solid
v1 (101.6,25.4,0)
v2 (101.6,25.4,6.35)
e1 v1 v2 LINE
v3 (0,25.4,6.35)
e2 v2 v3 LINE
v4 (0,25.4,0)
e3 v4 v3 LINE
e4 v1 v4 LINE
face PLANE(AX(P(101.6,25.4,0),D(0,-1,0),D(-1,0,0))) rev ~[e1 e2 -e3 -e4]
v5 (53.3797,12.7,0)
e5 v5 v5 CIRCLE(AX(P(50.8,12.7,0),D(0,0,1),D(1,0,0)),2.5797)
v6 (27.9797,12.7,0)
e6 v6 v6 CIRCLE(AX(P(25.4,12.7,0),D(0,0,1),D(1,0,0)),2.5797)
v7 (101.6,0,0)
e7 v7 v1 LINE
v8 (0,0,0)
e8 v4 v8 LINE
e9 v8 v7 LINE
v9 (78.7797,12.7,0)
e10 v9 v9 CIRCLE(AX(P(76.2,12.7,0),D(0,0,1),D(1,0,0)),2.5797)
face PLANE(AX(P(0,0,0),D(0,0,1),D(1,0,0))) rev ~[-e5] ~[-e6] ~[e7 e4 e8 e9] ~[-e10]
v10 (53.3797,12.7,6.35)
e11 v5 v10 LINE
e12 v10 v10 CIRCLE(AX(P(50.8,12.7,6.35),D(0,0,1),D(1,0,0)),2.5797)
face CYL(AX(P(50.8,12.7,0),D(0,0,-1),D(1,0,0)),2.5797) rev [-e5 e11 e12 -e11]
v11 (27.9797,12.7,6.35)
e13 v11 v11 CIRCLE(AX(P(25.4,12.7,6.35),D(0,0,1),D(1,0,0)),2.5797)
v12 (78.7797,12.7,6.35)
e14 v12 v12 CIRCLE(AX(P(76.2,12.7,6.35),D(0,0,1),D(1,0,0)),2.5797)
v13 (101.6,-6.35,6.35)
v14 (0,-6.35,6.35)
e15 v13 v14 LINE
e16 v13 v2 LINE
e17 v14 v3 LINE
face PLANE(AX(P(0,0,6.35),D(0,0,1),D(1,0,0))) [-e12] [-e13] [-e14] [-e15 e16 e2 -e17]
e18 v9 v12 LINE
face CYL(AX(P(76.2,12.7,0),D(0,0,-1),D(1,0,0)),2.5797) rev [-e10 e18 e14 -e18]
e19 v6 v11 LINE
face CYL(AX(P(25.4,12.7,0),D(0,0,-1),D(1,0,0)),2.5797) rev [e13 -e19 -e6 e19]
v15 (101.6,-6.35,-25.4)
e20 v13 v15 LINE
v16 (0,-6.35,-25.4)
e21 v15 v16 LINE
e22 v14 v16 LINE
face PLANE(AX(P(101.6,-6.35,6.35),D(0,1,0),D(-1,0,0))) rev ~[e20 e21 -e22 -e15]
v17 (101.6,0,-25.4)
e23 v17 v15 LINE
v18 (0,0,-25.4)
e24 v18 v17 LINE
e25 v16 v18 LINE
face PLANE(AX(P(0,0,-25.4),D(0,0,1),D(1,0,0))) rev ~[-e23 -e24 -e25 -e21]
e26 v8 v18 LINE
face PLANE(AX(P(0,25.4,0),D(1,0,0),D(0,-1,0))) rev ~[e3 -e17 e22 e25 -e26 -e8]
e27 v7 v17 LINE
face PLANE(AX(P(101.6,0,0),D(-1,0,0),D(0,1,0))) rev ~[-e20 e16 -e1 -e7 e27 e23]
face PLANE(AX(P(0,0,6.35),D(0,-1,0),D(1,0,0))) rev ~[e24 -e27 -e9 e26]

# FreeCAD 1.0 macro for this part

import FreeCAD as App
import Part
import Sketcher
Q = App.Units.Quantity

doc = App.newDocument("Part")
body = doc.addObject("PartDesign::Body", "Body")

# Sketch on XY plane
sketch1 = body.newObject("Sketcher::SketchObject", "Sketch")
sketch1.AttachmentSupport = (doc.getObject("XY_Plane"), [""])
sketch1.MapMode = "FlatFace"
sketch1.addGeometry(Part.LineSegment(App.Vector(0, 25.4, 0), App.Vector(0, 0, 0)), False)
sketch1.addGeometry(Part.LineSegment(App.Vector(0, 0, 0), App.Vector(101.6, 0, 0)), False)
sketch1.addGeometry(Part.LineSegment(App.Vector(101.6, 0, 0), App.Vector(101.6, 25.4, 0)), False)
sketch1.addGeometry(Part.LineSegment(App.Vector(101.6, 25.4, 0), App.Vector(0, 25.4, 0)), False)
sketch1.addGeometry(Part.Circle(App.Vector(25.4, 12.7, 0), App.Vector(0, 0, 1), 2.5797), False)
sketch1.addGeometry(Part.Circle(App.Vector(50.8, 12.7, 0), App.Vector(0, 0, 1), 2.5797), False)
sketch1.addGeometry(Part.Circle(App.Vector(76.2, 12.7, 0), App.Vector(0, 0, 1), 2.5797), False)
sketch1.addConstraint(Sketcher.Constraint("Coincident", 0, 2, 1, 1))
sketch1.addConstraint(Sketcher.Constraint("Coincident", 1, 2, 2, 1))
sketch1.addConstraint(Sketcher.Constraint("Coincident", 2, 2, 3, 1))
sketch1.addConstraint(Sketcher.Constraint("Coincident", 3, 2, 0, 1))
sketch1.addConstraint(Sketcher.Constraint("Vertical", 0))
sketch1.addConstraint(Sketcher.Constraint("Horizontal", 1))
sketch1.addConstraint(Sketcher.Constraint("Vertical", 2))
sketch1.addConstraint(Sketcher.Constraint("Horizontal", 3))
sketch1.addConstraint(Sketcher.Constraint("Coincident", 0, 2, -1, 1))
sketch1.addConstraint(Sketcher.Constraint("Equal", 4, 5))
sketch1.addConstraint(Sketcher.Constraint("Equal", 5, 6))
sketch1.addConstraint(Sketcher.Constraint("Horizontal", 4, 3, 5, 3))
sketch1.addConstraint(Sketcher.Constraint("Horizontal", 5, 3, 6, 3))
sketch1.addConstraint(Sketcher.Constraint("DistanceX", 1, 1, 1, 2, Q("4 in")))
sketch1.addConstraint(Sketcher.Constraint("DistanceY", 0, 2, 0, 1, Q("1 in")))
sketch1.addConstraint(Sketcher.Constraint("Diameter", 4, Q("0.203126 in")))
sketch1.addConstraint(Sketcher.Constraint("DistanceX", -1, 1, 4, 3, Q("1 in")))
sketch1.addConstraint(Sketcher.Constraint("DistanceX", 4, 3, 5, 3, Q("1 in")))
sketch1.addConstraint(Sketcher.Constraint("DistanceX", 5, 3, 6, 3, Q("1 in")))
sketch1.addConstraint(Sketcher.Constraint("DistanceY", -1, 1, 4, 3, Q("0.5 in")))
pad1 = body.newObject("PartDesign::Pad", "Pad")
pad1.Profile = sketch1
pad1.Length = Q("0.25 in")

# Sketch on XY plane
sketch2 = body.newObject("Sketcher::SketchObject", "Sketch001")
sketch2.AttachmentSupport = (doc.getObject("XY_Plane"), [""])
sketch2.MapMode = "FlatFace"
sketch2.AttachmentOffset = App.Placement(App.Vector(0, 0, 0.25 * 25.4), App.Rotation())
sketch2.addGeometry(Part.LineSegment(App.Vector(101.6, 0, 0), App.Vector(0, 0, 0)), False)
sketch2.addGeometry(Part.LineSegment(App.Vector(0, 0, 0), App.Vector(0, -6.35, 0)), False)
sketch2.addGeometry(Part.LineSegment(App.Vector(0, -6.35, 0), App.Vector(101.6, -6.35, 0)), False)
sketch2.addGeometry(Part.LineSegment(App.Vector(101.6, -6.35, 0), App.Vector(101.6, 0, 0)), False)
sketch2.addConstraint(Sketcher.Constraint("Coincident", 0, 2, 1, 1))
sketch2.addConstraint(Sketcher.Constraint("Coincident", 1, 2, 2, 1))
sketch2.addConstraint(Sketcher.Constraint("Coincident", 2, 2, 3, 1))
sketch2.addConstraint(Sketcher.Constraint("Coincident", 3, 2, 0, 1))
sketch2.addConstraint(Sketcher.Constraint("Horizontal", 0))
sketch2.addConstraint(Sketcher.Constraint("Vertical", 1))
sketch2.addConstraint(Sketcher.Constraint("Horizontal", 2))
sketch2.addConstraint(Sketcher.Constraint("Vertical", 3))
sketch2.addConstraint(Sketcher.Constraint("Coincident", 0, 2, -1, 1))
sketch2.addConstraint(Sketcher.Constraint("DistanceX", 0, 2, 0, 1, Q("4 in")))
sketch2.addConstraint(Sketcher.Constraint("DistanceY", 1, 2, 1, 1, Q("0.25 in")))
pad2 = body.newObject("PartDesign::Pad", "Pad001")
pad2.Profile = sketch2
pad2.Length = Q("1.25 in")
pad2.Reversed = True

doc.recompute()
